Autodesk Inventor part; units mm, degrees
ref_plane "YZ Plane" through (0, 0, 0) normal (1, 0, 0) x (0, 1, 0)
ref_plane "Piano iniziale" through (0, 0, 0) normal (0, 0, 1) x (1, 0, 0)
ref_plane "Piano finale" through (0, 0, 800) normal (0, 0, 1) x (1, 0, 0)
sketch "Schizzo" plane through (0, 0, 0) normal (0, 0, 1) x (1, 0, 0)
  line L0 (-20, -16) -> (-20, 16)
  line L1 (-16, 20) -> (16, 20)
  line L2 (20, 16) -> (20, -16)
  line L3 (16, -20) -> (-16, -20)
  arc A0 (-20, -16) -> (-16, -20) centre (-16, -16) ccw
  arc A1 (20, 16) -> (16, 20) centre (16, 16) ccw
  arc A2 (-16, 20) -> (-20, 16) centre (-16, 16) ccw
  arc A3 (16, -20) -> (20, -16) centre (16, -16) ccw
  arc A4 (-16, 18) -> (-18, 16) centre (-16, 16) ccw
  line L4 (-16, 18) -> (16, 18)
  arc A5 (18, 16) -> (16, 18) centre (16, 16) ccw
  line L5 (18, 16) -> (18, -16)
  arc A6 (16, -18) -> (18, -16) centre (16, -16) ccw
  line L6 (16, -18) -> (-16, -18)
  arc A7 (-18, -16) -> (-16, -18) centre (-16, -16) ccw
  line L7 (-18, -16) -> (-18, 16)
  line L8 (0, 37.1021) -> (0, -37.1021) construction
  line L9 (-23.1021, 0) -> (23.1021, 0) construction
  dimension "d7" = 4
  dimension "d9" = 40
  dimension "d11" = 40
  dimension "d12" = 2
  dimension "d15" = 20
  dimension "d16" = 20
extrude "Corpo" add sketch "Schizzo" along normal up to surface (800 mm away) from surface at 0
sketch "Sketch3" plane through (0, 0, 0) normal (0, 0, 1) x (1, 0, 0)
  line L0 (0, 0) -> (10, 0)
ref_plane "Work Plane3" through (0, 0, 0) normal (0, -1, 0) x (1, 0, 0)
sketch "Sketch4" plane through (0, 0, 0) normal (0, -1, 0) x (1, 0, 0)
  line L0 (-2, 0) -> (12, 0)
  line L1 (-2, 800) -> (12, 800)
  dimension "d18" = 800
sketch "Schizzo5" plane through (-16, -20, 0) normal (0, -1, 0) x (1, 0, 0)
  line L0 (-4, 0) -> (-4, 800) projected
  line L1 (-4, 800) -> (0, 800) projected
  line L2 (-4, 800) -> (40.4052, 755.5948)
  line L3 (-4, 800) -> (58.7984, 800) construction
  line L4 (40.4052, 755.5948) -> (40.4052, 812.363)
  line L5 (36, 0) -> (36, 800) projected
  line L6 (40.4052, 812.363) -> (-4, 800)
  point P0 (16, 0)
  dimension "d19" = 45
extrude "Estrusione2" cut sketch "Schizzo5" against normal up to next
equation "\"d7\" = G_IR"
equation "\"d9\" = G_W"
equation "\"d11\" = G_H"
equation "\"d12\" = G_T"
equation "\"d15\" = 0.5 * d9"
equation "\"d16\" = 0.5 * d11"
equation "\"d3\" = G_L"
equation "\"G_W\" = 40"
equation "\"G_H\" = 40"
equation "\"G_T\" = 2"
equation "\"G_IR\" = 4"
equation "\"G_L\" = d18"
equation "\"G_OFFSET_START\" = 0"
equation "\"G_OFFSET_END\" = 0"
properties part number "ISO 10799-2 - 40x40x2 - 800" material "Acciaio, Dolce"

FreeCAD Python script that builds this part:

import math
import FreeCAD as App
import Part
import Sketcher

V = App.Vector
Q = App.Units.Quantity

doc = App.newDocument("Part")
params = doc.addObject("Spreadsheet::Sheet", "Params")
for row, (alias, value) in enumerate([
    ("sketch1_radius", "4 mm"),
    ("sketch1_radius2", "2 mm"),
    ("pad1_length", "800 mm"),
    ("pocket1_length", "40 mm"),
], start=1):
    params.set(f"A{row}", alias)
    params.set(f"B{row}", "=" + value)
    params.setAlias(f"B{row}", alias)

body = doc.addObject("PartDesign::Body", "Body")

# Sketch on XY plane
sketch1 = body.newObject("Sketcher::SketchObject", "Sketch")
sketch1.AttachmentSupport = (doc.getObject("XY_Plane"), [""])
sketch1.MapMode = "FlatFace"
sketch1.addGeometry(Part.LineSegment(V(-20, 16, 0), V(-20, -16, 0)), False)
sketch1.addGeometry(Part.ArcOfCircle(Part.Circle(V(-16, -16, 0), V(0, 0, 1), 4), math.radians(180), math.radians(270)), False)
sketch1.addGeometry(Part.LineSegment(V(-16, -20, 0), V(16, -20, 0)), False)
sketch1.addGeometry(Part.ArcOfCircle(Part.Circle(V(16, -16, 0), V(0, 0, 1), 4), math.radians(-90), math.radians(0)), False)
sketch1.addGeometry(Part.LineSegment(V(20, -16, 0), V(20, 16, 0)), False)
sketch1.addGeometry(Part.ArcOfCircle(Part.Circle(V(16, 16, 0), V(0, 0, 1), 4), math.radians(0), math.radians(90)), False)
sketch1.addGeometry(Part.LineSegment(V(16, 20, 0), V(-16, 20, 0)), False)
sketch1.addGeometry(Part.ArcOfCircle(Part.Circle(V(-16, 16, 0), V(0, 0, 1), 4), math.radians(90), math.radians(180)), False)
sketch1.addGeometry(Part.ArcOfCircle(Part.Circle(V(-16, 16, 0), V(0, 0, 1), 2), math.radians(90), math.radians(180)), False)
sketch1.addGeometry(Part.LineSegment(V(-16, 18, 0), V(16, 18, 0)), False)
sketch1.addGeometry(Part.ArcOfCircle(Part.Circle(V(16, 16, 0), V(0, 0, 1), 2), math.radians(0), math.radians(90)), False)
sketch1.addGeometry(Part.LineSegment(V(18, 16, 0), V(18, -16, 0)), False)
sketch1.addGeometry(Part.ArcOfCircle(Part.Circle(V(16, -16, 0), V(0, 0, 1), 2), math.radians(-90), math.radians(0)), False)
sketch1.addGeometry(Part.LineSegment(V(16, -18, 0), V(-16, -18, 0)), False)
sketch1.addGeometry(Part.ArcOfCircle(Part.Circle(V(-16, -16, 0), V(0, 0, 1), 2), math.radians(180), math.radians(270)), False)
sketch1.addGeometry(Part.LineSegment(V(-18, -16, 0), V(-18, 16, 0)), False)
sketch1.addConstraint(Sketcher.Constraint("Tangent", 0, 2, 1, 1))
sketch1.addConstraint(Sketcher.Constraint("Tangent", 1, 2, 2, 1))
sketch1.addConstraint(Sketcher.Constraint("Tangent", 2, 2, 3, 1))
sketch1.addConstraint(Sketcher.Constraint("Tangent", 3, 2, 4, 1))
sketch1.addConstraint(Sketcher.Constraint("Tangent", 4, 2, 5, 1))
sketch1.addConstraint(Sketcher.Constraint("Tangent", 5, 2, 6, 1))
sketch1.addConstraint(Sketcher.Constraint("Tangent", 6, 2, 7, 1))
sketch1.addConstraint(Sketcher.Constraint("Tangent", 7, 2, 0, 1))
sketch1.addConstraint(Sketcher.Constraint("Tangent", 8, 1, 9, 1))
sketch1.addConstraint(Sketcher.Constraint("Tangent", 9, 2, 10, 2))
sketch1.addConstraint(Sketcher.Constraint("Tangent", 10, 1, 11, 1))
sketch1.addConstraint(Sketcher.Constraint("Tangent", 11, 2, 12, 2))
sketch1.addConstraint(Sketcher.Constraint("Tangent", 12, 1, 13, 1))
sketch1.addConstraint(Sketcher.Constraint("Tangent", 13, 2, 14, 2))
sketch1.addConstraint(Sketcher.Constraint("Tangent", 14, 1, 15, 1))
sketch1.addConstraint(Sketcher.Constraint("Tangent", 15, 2, 8, 2))
sketch1.addConstraint(Sketcher.Constraint("Vertical", 0))
sketch1.addConstraint(Sketcher.Constraint("Horizontal", 2))
sketch1.addConstraint(Sketcher.Constraint("Vertical", 4))
sketch1.addConstraint(Sketcher.Constraint("Horizontal", 6))
sketch1.addConstraint(Sketcher.Constraint("Horizontal", 9))
sketch1.addConstraint(Sketcher.Constraint("Vertical", 11))
sketch1.addConstraint(Sketcher.Constraint("Horizontal", 13))
sketch1.addConstraint(Sketcher.Constraint("Vertical", 15))
sketch1.addConstraint(Sketcher.Constraint("Coincident", 8, 3, 7, 3))
sketch1.addConstraint(Sketcher.Constraint("Coincident", 10, 3, 5, 3))
sketch1.addConstraint(Sketcher.Constraint("Coincident", 12, 3, 3, 3))
sketch1.addConstraint(Sketcher.Constraint("Equal", 1, 3))
sketch1.addConstraint(Sketcher.Constraint("Equal", 3, 5))
sketch1.addConstraint(Sketcher.Constraint("Equal", 5, 7))
sketch1.addConstraint(Sketcher.Constraint("Equal", 12, 14))
sketch1.addConstraint(Sketcher.Constraint("Symmetric", 1, 3, 5, 3, -1, 1))
sketch1.addConstraint(Sketcher.Constraint("Equal", 13, 0))
sketch1.addConstraint(Sketcher.Constraint("Radius", 1, 4.0))
sketch1.addConstraint(Sketcher.Constraint("Radius", 8, 2.0))
sketch1.addConstraint(Sketcher.Constraint("DistanceX", 0, 2, -1, 1, 20.0))
sketch1.setExpression("Constraints[33]", "Params.sketch1_radius")
sketch1.setExpression("Constraints[34]", "Params.sketch1_radius2")
pad1 = body.newObject("PartDesign::Pad", "Pad")
pad1.Profile = sketch1
pad1.setExpression("Length", "Params.pad1_length")

# Sketch on XZ plane
sketch2 = body.newObject("Sketcher::SketchObject", "Sketch001")
sketch2.AttachmentSupport = (doc.getObject("XZ_Plane"), [""])
sketch2.MapMode = "FlatFace"
sketch2.AttachmentOffset = App.Placement(V(0, 0, 20), App.Rotation())
sketch2.addGeometry(Part.LineSegment(V(24, 812, 0), V(-20, 800, 0)), False)
sketch2.addGeometry(Part.LineSegment(V(-20, 800, 0), V(24, 756, 0)), False)
sketch2.addGeometry(Part.LineSegment(V(24, 756, 0), V(24, 812, 0)), False)
sketch2.addConstraint(Sketcher.Constraint("Coincident", 0, 2, 1, 1))
sketch2.addConstraint(Sketcher.Constraint("Coincident", 1, 2, 2, 1))
sketch2.addConstraint(Sketcher.Constraint("Coincident", 2, 2, 0, 1))
sketch2.addConstraint(Sketcher.Constraint("Vertical", 2))
sketch2.addConstraint(Sketcher.Constraint("Angle", 1, Q("-45 deg")))
sketch2.addConstraint(Sketcher.Constraint("DistanceX", 0, 2, -1, 1, 20.0))
sketch2.addConstraint(Sketcher.Constraint("DistanceY", -1, 1, 0, 2, 800.0))
sketch2.addConstraint(Sketcher.Constraint("Distance", 0, 46.094))
sketch2.addConstraint(Sketcher.Constraint("DistanceY", 2, 1, 2, 2, 56.7682))
pocket1 = body.newObject("PartDesign::Pocket", "Pocket")
pocket1.Profile = sketch2
pocket1.setExpression("Length", "Params.pocket1_length")

doc.recompute()
